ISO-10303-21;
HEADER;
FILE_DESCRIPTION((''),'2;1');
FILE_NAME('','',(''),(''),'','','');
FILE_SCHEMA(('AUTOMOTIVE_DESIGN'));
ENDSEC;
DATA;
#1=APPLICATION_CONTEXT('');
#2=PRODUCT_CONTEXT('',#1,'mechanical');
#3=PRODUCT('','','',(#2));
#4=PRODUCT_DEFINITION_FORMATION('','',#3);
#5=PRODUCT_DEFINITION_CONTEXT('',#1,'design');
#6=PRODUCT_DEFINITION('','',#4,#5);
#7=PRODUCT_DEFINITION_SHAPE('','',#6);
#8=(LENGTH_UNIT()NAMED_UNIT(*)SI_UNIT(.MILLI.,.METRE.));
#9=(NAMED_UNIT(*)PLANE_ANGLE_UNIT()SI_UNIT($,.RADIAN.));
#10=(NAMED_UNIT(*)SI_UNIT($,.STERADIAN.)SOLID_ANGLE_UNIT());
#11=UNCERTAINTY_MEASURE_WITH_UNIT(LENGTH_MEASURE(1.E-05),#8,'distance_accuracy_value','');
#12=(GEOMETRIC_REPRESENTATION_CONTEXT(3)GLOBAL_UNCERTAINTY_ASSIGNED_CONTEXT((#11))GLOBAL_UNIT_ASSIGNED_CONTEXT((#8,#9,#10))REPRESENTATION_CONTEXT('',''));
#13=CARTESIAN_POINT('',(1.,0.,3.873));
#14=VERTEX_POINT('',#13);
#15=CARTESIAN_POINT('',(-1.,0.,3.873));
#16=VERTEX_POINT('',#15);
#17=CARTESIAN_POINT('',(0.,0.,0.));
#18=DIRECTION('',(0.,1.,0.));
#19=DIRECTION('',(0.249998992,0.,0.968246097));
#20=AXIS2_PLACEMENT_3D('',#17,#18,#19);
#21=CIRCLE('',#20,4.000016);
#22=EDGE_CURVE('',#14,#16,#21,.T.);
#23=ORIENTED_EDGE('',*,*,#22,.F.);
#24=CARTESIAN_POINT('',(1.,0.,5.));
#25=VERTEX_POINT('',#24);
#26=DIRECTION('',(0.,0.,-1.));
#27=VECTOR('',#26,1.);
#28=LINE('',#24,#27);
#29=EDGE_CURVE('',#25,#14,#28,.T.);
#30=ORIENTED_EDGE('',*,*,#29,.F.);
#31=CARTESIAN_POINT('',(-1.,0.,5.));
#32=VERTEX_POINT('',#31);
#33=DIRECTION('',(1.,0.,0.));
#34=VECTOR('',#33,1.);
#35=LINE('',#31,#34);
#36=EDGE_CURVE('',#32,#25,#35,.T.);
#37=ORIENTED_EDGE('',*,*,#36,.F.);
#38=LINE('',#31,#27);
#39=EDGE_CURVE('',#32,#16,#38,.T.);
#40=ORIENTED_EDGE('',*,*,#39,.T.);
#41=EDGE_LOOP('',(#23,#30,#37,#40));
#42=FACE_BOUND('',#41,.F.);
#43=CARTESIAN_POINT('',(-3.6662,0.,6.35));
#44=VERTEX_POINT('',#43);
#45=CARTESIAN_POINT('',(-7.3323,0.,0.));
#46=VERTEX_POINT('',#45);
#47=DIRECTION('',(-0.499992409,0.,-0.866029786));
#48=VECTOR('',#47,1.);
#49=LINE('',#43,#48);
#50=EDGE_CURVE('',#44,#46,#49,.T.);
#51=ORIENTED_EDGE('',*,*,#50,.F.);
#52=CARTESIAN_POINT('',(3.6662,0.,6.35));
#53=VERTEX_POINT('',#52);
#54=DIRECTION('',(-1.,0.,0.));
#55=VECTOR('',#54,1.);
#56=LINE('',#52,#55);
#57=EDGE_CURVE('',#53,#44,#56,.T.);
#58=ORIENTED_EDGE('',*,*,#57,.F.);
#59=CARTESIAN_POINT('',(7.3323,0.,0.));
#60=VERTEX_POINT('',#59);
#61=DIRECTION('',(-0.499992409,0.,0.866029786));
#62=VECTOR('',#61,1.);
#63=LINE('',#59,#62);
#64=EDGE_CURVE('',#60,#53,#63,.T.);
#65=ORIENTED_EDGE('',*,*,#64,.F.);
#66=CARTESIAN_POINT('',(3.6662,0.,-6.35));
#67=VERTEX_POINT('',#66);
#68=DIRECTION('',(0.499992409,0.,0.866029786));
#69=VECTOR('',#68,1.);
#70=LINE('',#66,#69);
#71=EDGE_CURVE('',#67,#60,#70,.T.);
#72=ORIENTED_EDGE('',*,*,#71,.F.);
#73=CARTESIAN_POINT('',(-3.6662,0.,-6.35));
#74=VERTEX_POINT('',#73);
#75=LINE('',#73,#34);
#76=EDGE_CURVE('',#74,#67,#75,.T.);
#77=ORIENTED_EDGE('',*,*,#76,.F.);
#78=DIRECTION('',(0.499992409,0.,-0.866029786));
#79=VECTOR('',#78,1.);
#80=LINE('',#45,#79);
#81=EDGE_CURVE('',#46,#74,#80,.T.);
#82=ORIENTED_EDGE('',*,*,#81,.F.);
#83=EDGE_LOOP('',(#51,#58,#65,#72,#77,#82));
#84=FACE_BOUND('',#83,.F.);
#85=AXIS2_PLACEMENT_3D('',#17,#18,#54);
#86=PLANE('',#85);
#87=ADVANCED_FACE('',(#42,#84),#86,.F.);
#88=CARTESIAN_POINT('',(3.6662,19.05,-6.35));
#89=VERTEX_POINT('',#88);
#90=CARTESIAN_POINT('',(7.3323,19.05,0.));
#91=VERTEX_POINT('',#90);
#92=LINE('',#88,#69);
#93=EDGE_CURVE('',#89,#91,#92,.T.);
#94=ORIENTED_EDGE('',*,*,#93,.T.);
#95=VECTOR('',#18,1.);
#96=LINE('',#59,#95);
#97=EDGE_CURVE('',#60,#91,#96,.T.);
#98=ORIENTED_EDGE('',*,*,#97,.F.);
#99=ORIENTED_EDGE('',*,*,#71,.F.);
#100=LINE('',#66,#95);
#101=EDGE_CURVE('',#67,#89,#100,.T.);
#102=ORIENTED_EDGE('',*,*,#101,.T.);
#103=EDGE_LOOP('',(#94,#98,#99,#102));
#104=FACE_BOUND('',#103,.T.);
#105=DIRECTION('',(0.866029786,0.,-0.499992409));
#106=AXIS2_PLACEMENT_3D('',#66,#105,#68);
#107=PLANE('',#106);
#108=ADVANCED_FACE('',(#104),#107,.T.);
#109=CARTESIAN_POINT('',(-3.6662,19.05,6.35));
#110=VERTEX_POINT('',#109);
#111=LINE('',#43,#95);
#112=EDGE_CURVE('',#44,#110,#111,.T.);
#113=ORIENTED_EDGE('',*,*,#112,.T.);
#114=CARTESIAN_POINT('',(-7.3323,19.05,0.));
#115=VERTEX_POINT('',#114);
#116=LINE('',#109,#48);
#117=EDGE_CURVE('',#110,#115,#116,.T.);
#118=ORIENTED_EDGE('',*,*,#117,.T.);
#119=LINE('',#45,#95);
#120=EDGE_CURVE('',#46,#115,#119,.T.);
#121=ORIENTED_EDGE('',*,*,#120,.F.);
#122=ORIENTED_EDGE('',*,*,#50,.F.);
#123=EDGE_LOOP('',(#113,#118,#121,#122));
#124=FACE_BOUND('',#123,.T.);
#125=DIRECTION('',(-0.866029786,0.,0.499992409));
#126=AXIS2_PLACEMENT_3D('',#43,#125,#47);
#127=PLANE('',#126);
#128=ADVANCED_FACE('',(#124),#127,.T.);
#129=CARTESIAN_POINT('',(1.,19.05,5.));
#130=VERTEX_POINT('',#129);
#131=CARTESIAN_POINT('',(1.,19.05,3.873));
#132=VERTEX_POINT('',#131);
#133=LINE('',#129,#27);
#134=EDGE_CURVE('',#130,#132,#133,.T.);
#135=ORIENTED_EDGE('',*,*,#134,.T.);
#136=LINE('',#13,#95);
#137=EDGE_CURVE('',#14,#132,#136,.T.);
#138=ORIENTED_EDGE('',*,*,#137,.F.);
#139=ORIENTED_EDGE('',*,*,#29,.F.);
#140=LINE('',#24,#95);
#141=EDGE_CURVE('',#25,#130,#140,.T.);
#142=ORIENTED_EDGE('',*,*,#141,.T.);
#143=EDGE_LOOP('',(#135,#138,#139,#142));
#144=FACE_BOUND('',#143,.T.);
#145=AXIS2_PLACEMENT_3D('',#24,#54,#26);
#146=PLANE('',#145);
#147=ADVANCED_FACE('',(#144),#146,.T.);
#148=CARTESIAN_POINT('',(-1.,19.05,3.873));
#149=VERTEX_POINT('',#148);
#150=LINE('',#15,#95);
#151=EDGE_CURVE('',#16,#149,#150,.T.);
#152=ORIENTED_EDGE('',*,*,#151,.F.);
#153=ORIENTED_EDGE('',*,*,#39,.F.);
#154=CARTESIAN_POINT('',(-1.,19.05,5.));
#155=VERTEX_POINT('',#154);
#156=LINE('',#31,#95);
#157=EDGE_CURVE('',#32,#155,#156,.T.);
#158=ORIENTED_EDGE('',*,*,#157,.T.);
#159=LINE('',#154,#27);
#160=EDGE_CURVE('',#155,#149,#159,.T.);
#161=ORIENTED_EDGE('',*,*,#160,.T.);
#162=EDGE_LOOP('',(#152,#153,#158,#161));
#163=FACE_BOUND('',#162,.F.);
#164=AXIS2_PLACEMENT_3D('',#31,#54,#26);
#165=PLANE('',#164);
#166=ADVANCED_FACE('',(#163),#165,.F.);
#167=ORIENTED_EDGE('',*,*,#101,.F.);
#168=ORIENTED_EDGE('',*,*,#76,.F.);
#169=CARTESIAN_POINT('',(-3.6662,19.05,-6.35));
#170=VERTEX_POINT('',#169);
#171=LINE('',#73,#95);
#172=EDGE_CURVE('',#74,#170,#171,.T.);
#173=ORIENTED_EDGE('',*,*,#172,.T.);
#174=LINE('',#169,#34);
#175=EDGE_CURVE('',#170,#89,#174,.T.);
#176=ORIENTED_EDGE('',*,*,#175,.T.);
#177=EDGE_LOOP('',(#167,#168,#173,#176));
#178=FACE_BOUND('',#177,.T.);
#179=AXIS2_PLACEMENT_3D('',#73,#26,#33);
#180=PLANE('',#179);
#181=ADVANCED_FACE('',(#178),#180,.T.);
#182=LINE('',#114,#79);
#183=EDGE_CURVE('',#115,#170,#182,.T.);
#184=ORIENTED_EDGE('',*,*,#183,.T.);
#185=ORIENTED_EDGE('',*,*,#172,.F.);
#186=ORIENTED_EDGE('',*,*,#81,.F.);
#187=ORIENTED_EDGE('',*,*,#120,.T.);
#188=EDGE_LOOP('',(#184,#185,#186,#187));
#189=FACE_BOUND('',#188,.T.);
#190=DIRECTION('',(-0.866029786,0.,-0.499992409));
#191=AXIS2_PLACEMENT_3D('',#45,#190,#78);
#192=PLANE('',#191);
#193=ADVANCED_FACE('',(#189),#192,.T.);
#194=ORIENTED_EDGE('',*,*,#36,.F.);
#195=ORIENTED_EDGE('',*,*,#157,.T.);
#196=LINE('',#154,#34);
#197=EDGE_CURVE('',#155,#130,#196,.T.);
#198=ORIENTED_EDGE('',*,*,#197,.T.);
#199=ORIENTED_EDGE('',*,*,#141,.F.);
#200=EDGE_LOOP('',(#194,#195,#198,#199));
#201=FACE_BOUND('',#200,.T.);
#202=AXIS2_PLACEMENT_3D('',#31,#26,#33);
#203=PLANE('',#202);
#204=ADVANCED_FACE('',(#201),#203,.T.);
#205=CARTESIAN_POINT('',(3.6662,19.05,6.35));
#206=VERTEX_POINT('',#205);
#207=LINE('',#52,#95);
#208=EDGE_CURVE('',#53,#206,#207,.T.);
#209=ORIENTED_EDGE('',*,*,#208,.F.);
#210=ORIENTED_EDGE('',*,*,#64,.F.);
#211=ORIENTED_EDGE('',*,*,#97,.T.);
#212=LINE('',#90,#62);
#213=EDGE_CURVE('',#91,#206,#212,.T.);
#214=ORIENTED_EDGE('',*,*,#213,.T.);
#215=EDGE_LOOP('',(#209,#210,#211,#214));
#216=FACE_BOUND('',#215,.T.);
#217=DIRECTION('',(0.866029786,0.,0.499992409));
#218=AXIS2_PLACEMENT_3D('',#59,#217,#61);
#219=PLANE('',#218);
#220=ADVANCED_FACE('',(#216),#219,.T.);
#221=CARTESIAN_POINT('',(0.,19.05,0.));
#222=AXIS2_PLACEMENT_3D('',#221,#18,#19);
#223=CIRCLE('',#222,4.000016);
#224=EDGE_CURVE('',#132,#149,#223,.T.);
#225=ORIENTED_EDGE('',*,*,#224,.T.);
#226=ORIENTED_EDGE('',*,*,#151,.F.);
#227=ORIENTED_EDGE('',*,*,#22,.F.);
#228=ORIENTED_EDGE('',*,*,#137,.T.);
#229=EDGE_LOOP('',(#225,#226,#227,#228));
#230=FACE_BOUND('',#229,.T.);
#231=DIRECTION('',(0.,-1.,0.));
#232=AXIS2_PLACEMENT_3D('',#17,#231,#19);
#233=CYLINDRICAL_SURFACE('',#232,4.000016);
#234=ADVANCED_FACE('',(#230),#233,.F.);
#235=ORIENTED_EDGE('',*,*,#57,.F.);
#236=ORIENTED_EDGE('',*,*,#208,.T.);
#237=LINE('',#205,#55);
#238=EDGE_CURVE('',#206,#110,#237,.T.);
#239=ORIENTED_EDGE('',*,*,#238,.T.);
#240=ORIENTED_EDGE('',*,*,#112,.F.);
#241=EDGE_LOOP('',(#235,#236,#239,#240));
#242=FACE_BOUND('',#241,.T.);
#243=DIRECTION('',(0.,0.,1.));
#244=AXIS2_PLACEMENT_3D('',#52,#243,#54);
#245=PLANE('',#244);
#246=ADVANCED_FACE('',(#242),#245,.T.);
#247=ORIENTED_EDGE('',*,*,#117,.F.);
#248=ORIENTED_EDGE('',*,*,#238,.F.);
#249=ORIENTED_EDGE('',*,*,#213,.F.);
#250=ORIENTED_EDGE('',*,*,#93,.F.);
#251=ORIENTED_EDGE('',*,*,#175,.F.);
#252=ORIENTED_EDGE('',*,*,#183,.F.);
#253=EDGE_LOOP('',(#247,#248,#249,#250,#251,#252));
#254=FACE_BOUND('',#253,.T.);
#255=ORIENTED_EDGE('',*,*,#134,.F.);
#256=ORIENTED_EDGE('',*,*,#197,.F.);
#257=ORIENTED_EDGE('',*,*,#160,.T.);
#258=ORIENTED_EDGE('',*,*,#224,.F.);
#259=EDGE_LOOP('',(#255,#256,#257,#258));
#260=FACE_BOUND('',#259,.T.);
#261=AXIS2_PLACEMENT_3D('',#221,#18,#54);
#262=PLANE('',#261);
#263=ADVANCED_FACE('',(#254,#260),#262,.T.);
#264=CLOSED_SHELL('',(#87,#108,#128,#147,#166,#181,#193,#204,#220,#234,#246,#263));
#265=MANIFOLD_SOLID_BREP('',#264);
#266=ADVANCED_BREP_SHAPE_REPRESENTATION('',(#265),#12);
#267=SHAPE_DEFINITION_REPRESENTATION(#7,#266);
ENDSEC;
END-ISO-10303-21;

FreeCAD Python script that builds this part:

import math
import FreeCAD as App
import Part
import Sketcher
from FreeCAD import Vector
Q = App.Units.Quantity

doc = App.newDocument("Part")
body = doc.addObject("PartDesign::Body", "Body")

# Sketch on XZ plane
sketch1 = body.newObject("Sketcher::SketchObject", "Sketch")
sketch1.AttachmentSupport = (doc.getObject("XZ_Plane"), [""])
sketch1.MapMode = "FlatFace"
sketch1.addGeometry(Part.LineSegment(Vector(-7.3, 0, 0), Vector(-3.7, 6.3, 0)), False)
sketch1.addGeometry(Part.LineSegment(Vector(-3.7, 6.3, 0), Vector(3.7, 6.3, 0)), False)
sketch1.addGeometry(Part.LineSegment(Vector(3.7, 6.3, 0), Vector(7.3, 0, 0)), False)
sketch1.addGeometry(Part.LineSegment(Vector(7.3, 0, 0), Vector(3.7, -6.3, 0)), False)
sketch1.addGeometry(Part.LineSegment(Vector(3.7, -6.3, 0), Vector(-3.7, -6.3, 0)), False)
sketch1.addGeometry(Part.LineSegment(Vector(-3.7, -6.3, 0), Vector(-7.3, 0, 0)), False)
sketch1.addGeometry(Part.ArcOfCircle(Part.Circle(Vector(0, 0, 0), Vector(0, 0, 1), 4), math.radians(104), math.radians(436)), False)
sketch1.addGeometry(Part.LineSegment(Vector(1, 3.9, 0), Vector(1, 5, 0)), False)
sketch1.addGeometry(Part.LineSegment(Vector(1, 5, 0), Vector(-1, 5, 0)), False)
sketch1.addGeometry(Part.LineSegment(Vector(-1, 5, 0), Vector(-1, 3.9, 0)), False)
sketch1.addConstraint(Sketcher.Constraint("Coincident", 0, 2, 1, 1))
sketch1.addConstraint(Sketcher.Constraint("Coincident", 1, 2, 2, 1))
sketch1.addConstraint(Sketcher.Constraint("Coincident", 2, 2, 3, 1))
sketch1.addConstraint(Sketcher.Constraint("Coincident", 3, 2, 4, 1))
sketch1.addConstraint(Sketcher.Constraint("Coincident", 4, 2, 5, 1))
sketch1.addConstraint(Sketcher.Constraint("Coincident", 5, 2, 0, 1))
sketch1.addConstraint(Sketcher.Constraint("Coincident", 6, 2, 7, 1))
sketch1.addConstraint(Sketcher.Constraint("Coincident", 7, 2, 8, 1))
sketch1.addConstraint(Sketcher.Constraint("Coincident", 8, 2, 9, 1))
sketch1.addConstraint(Sketcher.Constraint("Coincident", 9, 2, 6, 1))
sketch1.addConstraint(Sketcher.Constraint("Horizontal", 1))
sketch1.addConstraint(Sketcher.Constraint("Horizontal", 4))
sketch1.addConstraint(Sketcher.Constraint("Vertical", 7))
sketch1.addConstraint(Sketcher.Constraint("Horizontal", 8))
sketch1.addConstraint(Sketcher.Constraint("Vertical", 9))
sketch1.addConstraint(Sketcher.Constraint("Coincident", 6, 3, -1, 1))
sketch1.addConstraint(Sketcher.Constraint("Symmetric", 0, 2, 3, 2, -1, 1))
sketch1.addConstraint(Sketcher.Constraint("Symmetric", 2, 2, 5, 2, -1, 1))
sketch1.addConstraint(Sketcher.Constraint("PointOnObject", 2, 2, -1))
sketch1.addConstraint(Sketcher.Constraint("Parallel", 2, 5))
sketch1.addConstraint(Sketcher.Constraint("Horizontal", 6, 2, 9, 2))
sketch1.addConstraint(Sketcher.Constraint("Vertical", 1, 2, 3, 2))
sketch1.addConstraint(Sketcher.Constraint("Radius", 6, 4.0))
sketch1.addConstraint(Sketcher.Constraint("DistanceX", 8, 2, 8, 1, 2.0))
sketch1.addConstraint(Sketcher.Constraint("DistanceY", -1, 1, 7, 2, 5.0))
sketch1.addConstraint(Sketcher.Constraint("DistanceY", 3, 2, 1, 2, 12.7))
sketch1.addConstraint(Sketcher.Constraint("Angle", 0, Q("60.0005 deg")))
sketch1.addConstraint(Sketcher.Constraint("DistanceX", 1, 1, 1, 2, 7.3324))
pad1 = body.newObject("PartDesign::Pad", "Pad")
pad1.Profile = sketch1
pad1.Length = 19.05
pad1.Reversed = True

doc.recompute()
